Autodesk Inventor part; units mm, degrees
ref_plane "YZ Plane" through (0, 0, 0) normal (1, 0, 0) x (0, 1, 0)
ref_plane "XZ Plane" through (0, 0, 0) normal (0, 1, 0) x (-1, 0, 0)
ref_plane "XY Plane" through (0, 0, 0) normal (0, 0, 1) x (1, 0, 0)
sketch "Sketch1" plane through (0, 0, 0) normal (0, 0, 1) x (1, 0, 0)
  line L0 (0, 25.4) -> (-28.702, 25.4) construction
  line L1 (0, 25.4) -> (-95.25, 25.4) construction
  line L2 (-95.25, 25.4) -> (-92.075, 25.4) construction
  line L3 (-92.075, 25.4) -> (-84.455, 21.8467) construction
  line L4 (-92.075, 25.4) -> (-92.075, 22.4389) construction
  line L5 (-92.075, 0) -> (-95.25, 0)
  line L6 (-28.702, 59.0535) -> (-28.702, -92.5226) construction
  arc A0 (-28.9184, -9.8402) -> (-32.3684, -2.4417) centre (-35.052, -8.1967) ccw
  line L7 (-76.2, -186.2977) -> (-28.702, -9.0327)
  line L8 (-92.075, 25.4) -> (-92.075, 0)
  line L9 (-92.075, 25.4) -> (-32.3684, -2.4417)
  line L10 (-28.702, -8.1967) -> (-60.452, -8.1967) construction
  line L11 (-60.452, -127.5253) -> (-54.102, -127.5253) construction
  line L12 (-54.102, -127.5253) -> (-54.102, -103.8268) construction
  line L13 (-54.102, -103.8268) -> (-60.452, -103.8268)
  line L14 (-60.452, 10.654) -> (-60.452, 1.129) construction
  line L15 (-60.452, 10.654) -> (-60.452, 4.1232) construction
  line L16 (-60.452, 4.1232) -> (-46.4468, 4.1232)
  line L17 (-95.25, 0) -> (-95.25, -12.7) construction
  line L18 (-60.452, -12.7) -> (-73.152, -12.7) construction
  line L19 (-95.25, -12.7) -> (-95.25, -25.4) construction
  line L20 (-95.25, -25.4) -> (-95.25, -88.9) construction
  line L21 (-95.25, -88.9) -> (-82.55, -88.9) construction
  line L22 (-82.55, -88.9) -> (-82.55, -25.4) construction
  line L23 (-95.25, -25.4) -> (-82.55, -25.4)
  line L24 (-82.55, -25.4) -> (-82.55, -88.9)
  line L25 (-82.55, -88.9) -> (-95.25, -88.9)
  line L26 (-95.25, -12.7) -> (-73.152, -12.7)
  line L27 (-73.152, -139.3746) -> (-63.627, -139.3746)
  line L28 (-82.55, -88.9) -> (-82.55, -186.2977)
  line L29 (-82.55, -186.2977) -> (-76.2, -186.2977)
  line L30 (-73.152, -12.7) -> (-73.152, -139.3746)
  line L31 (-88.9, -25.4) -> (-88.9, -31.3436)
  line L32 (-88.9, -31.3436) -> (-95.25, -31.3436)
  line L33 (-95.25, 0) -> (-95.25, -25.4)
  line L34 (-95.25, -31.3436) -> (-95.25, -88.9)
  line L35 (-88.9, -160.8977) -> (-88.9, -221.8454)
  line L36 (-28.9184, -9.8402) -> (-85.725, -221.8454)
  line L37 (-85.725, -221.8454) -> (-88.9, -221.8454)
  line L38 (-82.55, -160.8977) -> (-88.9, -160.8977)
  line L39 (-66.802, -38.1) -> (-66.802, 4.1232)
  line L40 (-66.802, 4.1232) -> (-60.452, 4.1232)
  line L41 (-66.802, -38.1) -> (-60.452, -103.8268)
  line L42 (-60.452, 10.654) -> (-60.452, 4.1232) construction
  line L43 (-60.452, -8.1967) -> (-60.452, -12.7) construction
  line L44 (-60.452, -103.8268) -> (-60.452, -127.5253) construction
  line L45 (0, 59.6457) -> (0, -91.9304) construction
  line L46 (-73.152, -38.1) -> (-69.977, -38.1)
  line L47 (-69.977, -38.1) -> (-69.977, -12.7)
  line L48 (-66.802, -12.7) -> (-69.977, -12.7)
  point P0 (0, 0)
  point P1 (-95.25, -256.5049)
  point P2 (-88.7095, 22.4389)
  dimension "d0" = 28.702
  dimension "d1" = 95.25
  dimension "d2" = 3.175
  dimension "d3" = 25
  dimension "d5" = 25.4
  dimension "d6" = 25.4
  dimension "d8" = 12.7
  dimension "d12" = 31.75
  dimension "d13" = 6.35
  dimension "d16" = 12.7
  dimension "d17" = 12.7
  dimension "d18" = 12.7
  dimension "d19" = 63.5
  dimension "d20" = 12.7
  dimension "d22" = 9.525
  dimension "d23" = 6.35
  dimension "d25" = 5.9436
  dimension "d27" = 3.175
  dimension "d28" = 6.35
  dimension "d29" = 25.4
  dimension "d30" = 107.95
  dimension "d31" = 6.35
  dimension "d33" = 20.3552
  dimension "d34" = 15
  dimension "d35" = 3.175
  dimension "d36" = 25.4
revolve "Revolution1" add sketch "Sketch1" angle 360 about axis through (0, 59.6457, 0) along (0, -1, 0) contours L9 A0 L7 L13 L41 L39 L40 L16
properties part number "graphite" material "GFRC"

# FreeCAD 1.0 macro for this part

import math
import FreeCAD as App
import Part
import Sketcher

V = App.Vector
Q = App.Units.Quantity

doc = App.newDocument("Part")
params = doc.addObject("Spreadsheet::Sheet", "Params")
for row, (alias, value) in enumerate([
    ("sketch1_radius", "0.25 in"),
    ("sketch1_width", "0.25 in"),
    ("revolution_angle", "360 deg"),
], start=1):
    params.set(f"A{row}", alias)
    params.set(f"B{row}", "=" + value)
    params.setAlias(f"B{row}", alias)

body = doc.addObject("PartDesign::Body", "Body")

# Sketch on XY plane
sketch1 = body.newObject("Sketcher::SketchObject", "Sketch")
sketch1.AttachmentSupport = (doc.getObject("XY_Plane"), [""])
sketch1.MapMode = "FlatFace"
sketch1.addGeometry([
    Part.LineSegment(V(-32, -2, 0), V(-46, 4, 0)),  # 0
    Part.LineSegment(V(-46, 4, 0), V(-67, 4, 0)),  # 1
    Part.LineSegment(V(-67, 4, 0), V(-67, -38, 0)),  # 2
    Part.LineSegment(V(-67, -38, 0), V(-60, -104, 0)),  # 3
    Part.LineSegment(V(-60, -104, 0), V(-54, -104, 0)),  # 4
    Part.LineSegment(V(-54, -104, 0), V(-29, -10, 0)),  # 5
    Part.ArcOfCircle(Part.Circle(V(-35, -8, 0), V(0, 0, 1), 6), math.radians(-15), math.radians(65)),  # 6
], False)
sketch1.addConstraint([
    Sketcher.Constraint("Coincident", 0, 2, 1, 1),
    Sketcher.Constraint("Coincident", 1, 2, 2, 1),
    Sketcher.Constraint("Coincident", 2, 2, 3, 1),
    Sketcher.Constraint("Coincident", 3, 2, 4, 1),
    Sketcher.Constraint("Coincident", 4, 2, 5, 1),
    Sketcher.Constraint("Tangent", 5, 2, 6, 1),
    Sketcher.Constraint("Tangent", 6, 2, 0, 1),
    Sketcher.Constraint("Horizontal", 1),
    Sketcher.Constraint("Vertical", 2),
    Sketcher.Constraint("Horizontal", 4),
    Sketcher.Constraint("Radius", 6, Q("0.25 in")),
    Sketcher.Constraint("DistanceX", 3, 2, 6, 3, Q("1 in")),
    Sketcher.Constraint("DistanceX", 4, 1, 4, 2, Q("0.25 in")),
    Sketcher.Constraint("DistanceX", 2, 2, 4, 2, Q("0.5 in")),
    Sketcher.Constraint("DistanceY", 3, 2, 1, 2, Q("4.25 in")),
    Sketcher.Constraint("Angle", 0, Q("155 deg")),
    Sketcher.Constraint("Angle", 5, Q("75 deg")),
    Sketcher.Constraint("DistanceY", 2, 2, -1, 1, Q("1.5 in")),
    Sketcher.Constraint("DistanceX", 6, 3, -1, 1, Q("1.38 in")),
    Sketcher.Constraint("DistanceY", 2, 2, 2, 1, 42.2232),
])
sketch1.setExpression("Constraints[10]", "Params.sketch1_radius")
sketch1.setExpression("Constraints[12]", "Params.sketch1_width")
revolution = body.newObject("PartDesign::Revolution", "Revolution")
revolution.Profile = sketch1
revolution.ReferenceAxis = (sketch1, ["V_Axis"])
revolution.setExpression("Angle", "Params.revolution_angle")

doc.recompute()
